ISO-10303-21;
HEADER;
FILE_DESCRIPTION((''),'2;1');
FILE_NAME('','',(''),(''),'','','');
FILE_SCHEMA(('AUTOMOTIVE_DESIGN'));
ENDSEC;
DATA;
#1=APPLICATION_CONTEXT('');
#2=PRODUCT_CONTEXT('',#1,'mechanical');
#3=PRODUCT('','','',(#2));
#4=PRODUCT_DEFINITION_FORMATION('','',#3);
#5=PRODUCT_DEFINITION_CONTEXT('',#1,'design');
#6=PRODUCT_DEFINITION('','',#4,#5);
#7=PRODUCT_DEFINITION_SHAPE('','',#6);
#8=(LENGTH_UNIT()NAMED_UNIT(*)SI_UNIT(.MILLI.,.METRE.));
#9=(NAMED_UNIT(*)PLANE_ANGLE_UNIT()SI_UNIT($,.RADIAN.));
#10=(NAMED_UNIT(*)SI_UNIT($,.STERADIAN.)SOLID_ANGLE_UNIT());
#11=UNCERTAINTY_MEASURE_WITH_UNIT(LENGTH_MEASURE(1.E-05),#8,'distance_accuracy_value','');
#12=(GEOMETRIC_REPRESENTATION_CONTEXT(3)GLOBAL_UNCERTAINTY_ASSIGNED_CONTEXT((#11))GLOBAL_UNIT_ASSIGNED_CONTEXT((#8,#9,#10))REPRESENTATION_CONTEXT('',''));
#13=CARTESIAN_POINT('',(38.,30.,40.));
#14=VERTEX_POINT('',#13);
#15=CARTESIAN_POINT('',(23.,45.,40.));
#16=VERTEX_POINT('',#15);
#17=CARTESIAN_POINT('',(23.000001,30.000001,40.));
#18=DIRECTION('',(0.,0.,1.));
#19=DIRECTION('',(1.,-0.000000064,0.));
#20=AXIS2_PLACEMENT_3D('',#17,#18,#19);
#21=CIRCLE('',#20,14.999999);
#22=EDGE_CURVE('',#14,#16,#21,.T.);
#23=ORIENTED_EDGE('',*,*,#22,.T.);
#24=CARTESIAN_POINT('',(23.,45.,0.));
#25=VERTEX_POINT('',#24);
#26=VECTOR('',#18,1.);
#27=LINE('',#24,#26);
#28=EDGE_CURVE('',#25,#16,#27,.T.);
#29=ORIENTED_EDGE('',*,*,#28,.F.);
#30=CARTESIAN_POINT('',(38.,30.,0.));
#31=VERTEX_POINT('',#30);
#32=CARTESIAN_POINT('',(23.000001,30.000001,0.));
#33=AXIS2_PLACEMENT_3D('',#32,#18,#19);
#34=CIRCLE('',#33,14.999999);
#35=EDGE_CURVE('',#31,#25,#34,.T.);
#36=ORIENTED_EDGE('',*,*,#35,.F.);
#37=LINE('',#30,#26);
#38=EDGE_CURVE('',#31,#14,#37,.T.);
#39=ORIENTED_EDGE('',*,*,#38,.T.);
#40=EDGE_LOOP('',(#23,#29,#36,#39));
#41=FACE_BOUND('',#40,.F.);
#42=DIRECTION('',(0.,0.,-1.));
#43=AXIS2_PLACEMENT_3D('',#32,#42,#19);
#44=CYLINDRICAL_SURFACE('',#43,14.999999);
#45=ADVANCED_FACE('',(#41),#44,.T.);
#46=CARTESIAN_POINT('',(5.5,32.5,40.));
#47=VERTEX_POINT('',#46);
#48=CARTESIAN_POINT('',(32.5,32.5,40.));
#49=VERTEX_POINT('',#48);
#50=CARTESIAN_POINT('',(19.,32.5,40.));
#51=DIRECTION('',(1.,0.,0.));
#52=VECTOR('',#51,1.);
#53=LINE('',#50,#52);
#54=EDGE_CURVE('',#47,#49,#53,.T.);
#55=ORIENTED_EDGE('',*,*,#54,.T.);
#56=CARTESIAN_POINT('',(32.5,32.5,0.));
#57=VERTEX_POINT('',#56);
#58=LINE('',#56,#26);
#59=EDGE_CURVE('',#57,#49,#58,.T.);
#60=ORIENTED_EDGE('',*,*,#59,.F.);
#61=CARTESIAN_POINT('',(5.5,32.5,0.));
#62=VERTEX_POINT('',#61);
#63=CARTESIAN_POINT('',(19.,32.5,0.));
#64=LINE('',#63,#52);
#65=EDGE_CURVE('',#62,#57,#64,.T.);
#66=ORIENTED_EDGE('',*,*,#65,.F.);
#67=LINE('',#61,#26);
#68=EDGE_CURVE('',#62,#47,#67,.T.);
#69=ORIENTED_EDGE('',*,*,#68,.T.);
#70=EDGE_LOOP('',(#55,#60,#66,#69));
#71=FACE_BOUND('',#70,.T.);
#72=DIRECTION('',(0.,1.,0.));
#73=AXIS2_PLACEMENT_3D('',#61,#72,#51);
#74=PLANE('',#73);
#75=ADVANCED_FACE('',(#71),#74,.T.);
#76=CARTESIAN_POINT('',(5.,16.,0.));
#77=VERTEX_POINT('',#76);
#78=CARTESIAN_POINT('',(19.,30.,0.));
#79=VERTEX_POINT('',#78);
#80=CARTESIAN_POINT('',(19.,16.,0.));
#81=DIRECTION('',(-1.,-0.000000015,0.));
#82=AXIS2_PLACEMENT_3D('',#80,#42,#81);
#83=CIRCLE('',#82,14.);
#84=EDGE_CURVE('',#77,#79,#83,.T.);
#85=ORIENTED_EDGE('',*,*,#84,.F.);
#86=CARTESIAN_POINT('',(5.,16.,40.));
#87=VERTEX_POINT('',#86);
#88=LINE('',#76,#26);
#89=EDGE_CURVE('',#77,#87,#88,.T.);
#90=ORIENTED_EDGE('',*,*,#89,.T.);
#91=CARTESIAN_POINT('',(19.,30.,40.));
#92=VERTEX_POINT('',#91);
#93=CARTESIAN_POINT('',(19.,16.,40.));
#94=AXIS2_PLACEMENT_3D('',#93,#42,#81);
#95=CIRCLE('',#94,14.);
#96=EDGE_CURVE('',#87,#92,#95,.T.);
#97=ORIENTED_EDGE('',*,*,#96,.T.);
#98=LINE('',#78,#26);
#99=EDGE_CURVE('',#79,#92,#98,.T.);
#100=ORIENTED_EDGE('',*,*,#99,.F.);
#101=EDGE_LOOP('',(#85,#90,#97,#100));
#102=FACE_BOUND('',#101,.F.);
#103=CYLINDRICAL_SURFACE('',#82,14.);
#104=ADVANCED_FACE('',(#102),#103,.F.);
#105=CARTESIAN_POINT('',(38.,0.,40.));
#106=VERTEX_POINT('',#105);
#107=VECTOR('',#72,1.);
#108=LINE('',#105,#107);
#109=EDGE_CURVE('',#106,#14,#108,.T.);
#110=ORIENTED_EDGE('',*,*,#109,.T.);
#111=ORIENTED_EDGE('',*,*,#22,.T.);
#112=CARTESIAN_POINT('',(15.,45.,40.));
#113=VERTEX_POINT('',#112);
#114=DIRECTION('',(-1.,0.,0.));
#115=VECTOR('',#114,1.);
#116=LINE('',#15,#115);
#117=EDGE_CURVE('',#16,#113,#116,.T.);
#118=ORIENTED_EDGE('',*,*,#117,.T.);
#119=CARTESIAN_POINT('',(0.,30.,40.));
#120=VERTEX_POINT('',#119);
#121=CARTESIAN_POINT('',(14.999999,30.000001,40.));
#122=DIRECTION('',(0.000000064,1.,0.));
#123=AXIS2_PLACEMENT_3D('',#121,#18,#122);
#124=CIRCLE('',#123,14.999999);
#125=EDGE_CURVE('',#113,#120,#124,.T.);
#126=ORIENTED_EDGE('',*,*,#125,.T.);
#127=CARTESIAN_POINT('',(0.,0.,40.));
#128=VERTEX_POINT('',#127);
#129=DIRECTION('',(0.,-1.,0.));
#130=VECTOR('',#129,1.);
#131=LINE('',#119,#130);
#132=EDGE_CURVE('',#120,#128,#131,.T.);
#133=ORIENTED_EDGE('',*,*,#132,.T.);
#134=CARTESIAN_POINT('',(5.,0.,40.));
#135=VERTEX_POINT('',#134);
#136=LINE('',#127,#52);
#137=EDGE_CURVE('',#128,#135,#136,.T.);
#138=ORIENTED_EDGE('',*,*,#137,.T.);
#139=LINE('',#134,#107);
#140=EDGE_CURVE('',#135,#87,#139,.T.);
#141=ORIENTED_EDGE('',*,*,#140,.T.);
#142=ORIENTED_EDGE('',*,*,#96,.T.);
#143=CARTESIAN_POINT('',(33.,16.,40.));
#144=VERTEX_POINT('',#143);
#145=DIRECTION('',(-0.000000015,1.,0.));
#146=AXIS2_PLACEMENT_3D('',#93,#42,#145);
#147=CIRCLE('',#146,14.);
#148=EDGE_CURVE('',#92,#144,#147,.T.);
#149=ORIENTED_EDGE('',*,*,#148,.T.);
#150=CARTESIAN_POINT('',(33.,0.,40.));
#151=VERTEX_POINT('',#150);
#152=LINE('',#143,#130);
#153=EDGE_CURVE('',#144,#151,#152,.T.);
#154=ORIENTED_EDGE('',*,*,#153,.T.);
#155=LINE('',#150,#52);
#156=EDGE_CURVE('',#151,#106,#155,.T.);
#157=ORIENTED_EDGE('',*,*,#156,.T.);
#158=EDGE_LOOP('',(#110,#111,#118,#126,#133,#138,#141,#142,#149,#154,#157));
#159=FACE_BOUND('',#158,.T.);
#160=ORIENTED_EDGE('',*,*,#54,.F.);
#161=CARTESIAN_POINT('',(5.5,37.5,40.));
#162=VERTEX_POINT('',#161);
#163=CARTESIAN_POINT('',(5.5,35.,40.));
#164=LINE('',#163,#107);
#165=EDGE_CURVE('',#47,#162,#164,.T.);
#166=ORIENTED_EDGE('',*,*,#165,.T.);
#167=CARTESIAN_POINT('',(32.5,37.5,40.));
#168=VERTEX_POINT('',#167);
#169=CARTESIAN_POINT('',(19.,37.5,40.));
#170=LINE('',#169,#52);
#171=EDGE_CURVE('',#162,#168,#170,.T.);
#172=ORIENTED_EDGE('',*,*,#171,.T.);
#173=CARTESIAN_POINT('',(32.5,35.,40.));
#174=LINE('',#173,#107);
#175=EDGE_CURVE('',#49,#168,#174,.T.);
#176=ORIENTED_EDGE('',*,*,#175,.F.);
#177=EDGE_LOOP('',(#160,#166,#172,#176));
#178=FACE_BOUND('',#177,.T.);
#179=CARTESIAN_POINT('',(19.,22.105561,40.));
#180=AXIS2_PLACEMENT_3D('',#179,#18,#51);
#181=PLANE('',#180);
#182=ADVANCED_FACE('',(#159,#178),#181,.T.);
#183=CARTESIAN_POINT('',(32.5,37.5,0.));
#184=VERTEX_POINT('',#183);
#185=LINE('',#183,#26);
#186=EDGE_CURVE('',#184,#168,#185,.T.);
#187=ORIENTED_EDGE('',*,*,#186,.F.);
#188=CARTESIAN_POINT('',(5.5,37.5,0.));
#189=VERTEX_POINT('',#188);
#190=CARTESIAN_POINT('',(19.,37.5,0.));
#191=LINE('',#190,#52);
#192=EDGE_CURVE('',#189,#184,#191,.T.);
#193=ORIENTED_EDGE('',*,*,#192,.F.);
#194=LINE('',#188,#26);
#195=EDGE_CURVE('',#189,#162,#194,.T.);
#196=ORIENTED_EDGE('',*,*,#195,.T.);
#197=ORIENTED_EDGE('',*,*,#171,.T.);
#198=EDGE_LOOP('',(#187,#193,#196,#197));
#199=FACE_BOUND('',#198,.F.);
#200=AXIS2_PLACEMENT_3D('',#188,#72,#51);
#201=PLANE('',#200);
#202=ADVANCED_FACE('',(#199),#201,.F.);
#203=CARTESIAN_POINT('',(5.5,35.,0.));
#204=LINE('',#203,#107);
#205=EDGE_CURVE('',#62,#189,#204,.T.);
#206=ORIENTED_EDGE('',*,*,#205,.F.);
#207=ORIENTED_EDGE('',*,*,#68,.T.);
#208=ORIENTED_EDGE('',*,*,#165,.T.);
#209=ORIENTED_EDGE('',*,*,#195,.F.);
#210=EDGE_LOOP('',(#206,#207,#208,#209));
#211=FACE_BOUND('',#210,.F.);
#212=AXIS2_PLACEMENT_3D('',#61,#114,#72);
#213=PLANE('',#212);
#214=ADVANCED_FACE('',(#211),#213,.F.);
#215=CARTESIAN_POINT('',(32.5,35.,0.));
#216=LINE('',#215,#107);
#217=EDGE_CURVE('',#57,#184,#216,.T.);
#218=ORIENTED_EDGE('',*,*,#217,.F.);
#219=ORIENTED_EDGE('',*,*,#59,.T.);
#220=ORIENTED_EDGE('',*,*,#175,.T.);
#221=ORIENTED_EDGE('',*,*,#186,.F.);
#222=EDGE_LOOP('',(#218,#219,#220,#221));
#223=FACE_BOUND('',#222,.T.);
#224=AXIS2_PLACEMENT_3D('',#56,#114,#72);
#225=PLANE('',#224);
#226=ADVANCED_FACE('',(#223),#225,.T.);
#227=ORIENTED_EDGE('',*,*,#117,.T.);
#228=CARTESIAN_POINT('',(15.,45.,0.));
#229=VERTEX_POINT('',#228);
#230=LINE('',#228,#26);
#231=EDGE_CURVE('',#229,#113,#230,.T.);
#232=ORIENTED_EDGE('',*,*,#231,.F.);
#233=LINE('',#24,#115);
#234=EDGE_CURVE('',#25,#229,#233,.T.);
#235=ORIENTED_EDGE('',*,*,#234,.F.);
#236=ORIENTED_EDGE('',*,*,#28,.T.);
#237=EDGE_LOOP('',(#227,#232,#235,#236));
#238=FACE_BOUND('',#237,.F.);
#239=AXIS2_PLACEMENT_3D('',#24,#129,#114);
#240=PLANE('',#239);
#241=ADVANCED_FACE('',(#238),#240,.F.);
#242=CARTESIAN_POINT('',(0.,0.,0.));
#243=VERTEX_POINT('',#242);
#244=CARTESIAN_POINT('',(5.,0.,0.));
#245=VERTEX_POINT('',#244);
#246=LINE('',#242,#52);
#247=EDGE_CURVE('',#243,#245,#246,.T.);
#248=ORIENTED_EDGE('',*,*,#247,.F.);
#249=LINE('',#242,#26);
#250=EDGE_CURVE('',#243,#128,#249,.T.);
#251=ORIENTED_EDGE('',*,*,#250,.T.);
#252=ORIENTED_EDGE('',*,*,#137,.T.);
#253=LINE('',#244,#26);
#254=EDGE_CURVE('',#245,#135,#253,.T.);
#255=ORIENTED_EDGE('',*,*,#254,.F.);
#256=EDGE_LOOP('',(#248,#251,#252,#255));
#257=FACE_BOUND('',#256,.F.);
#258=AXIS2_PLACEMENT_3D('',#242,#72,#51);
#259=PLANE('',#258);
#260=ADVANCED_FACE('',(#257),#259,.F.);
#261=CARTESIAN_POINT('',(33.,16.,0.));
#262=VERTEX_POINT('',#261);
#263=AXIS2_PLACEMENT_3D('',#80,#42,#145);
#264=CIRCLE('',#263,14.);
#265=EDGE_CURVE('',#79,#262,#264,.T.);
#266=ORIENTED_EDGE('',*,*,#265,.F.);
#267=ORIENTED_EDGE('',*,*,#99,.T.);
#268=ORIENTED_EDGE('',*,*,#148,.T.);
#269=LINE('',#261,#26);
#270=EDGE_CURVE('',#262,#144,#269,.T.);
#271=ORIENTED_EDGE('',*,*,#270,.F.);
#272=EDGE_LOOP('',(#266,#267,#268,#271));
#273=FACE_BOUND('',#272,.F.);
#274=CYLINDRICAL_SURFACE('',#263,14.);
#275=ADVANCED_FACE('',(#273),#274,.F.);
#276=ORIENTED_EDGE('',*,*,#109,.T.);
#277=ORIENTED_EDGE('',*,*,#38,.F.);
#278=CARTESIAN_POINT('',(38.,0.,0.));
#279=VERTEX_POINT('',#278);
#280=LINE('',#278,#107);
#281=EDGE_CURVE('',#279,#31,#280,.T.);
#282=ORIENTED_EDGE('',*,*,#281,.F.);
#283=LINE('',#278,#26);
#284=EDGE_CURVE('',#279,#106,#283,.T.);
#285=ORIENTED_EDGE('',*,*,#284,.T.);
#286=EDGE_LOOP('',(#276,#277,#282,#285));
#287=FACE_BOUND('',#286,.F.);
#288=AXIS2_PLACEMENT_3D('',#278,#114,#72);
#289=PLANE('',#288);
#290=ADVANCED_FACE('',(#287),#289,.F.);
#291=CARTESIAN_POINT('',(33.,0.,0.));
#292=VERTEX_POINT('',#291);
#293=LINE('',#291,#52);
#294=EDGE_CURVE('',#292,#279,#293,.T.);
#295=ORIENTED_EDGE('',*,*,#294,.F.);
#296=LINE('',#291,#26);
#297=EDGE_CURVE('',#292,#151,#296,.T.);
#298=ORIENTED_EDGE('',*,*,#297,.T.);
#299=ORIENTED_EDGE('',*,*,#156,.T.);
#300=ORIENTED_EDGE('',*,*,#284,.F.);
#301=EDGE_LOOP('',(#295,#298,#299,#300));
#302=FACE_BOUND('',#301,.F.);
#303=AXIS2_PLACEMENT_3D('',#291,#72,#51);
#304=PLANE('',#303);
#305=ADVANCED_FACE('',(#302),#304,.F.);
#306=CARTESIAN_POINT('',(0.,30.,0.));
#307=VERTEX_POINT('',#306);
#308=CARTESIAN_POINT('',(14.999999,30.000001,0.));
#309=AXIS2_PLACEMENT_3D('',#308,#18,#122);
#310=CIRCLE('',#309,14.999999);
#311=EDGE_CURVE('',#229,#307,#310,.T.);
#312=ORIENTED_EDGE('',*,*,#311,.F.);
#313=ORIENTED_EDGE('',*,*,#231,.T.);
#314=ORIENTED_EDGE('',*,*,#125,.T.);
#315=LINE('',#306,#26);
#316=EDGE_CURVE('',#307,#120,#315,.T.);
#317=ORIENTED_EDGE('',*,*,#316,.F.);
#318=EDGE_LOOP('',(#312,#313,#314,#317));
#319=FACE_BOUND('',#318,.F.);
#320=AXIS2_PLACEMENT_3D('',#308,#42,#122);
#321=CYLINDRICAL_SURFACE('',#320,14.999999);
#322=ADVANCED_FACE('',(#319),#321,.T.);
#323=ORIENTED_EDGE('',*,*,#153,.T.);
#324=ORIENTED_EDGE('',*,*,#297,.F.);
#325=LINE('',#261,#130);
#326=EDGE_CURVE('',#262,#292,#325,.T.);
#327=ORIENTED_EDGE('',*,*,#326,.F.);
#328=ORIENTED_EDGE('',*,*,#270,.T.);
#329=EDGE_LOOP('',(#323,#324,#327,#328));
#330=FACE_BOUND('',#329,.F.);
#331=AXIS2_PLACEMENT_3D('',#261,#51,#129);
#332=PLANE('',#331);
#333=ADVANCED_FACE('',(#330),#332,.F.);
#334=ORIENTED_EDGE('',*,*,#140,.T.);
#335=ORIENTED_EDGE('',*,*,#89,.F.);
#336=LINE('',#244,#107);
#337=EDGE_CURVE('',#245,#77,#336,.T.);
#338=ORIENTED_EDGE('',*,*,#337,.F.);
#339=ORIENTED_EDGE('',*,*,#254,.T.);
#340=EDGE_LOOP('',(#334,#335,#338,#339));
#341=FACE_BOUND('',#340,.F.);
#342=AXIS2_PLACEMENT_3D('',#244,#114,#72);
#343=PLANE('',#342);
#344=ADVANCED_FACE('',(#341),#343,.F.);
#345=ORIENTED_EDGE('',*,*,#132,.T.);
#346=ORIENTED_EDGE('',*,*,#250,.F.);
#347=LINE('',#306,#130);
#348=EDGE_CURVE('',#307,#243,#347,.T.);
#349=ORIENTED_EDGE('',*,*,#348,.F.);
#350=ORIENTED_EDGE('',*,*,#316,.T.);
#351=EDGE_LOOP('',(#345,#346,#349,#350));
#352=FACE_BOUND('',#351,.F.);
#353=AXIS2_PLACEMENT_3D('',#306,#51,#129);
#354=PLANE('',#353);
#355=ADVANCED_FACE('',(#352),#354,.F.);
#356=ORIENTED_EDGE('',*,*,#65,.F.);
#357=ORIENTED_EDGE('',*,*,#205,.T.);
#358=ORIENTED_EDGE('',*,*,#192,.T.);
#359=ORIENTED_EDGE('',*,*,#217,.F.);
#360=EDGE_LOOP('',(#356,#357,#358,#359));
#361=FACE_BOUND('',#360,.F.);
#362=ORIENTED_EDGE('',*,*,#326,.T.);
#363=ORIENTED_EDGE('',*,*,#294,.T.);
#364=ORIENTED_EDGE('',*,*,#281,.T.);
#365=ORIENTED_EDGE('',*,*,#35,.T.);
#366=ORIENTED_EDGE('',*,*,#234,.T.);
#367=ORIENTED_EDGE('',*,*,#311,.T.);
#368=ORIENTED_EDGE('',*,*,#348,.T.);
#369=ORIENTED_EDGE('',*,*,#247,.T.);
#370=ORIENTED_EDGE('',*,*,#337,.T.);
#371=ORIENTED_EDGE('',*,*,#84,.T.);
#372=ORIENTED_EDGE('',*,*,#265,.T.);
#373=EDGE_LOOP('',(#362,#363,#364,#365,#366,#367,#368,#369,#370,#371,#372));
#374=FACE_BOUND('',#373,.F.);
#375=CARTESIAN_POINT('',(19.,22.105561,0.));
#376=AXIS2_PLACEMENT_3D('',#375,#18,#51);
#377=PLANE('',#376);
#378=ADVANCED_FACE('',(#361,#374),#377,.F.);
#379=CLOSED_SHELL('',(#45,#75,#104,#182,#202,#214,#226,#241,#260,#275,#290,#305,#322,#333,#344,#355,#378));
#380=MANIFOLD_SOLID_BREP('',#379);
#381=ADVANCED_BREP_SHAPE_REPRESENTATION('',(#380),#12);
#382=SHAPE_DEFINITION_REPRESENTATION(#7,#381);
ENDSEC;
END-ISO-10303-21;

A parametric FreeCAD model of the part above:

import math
import FreeCAD as App
import Part
import Sketcher
from FreeCAD import Vector


def add_polygon(sketch, points):
    """Adds a closed chain of lines whose ends are joined by coincident constraints."""
    first, n = sketch.GeometryCount, len(points)
    for a, b in zip(points, points[1:] + points[:1]):
        sketch.addGeometry(Part.LineSegment(App.Vector(*a, 0), App.Vector(*b, 0)), False)
    for i in range(n):
        sketch.addConstraint(Sketcher.Constraint("Coincident", first + i, 2, first + (i + 1) % n, 1))

doc = App.newDocument("Part")
body = doc.addObject("PartDesign::Body", "Body")

# Sketch on XY plane
sketch1 = doc.addObject("Sketcher::SketchObject", "Sketch")
body.addObject(sketch1)
sketch1.AttachmentSupport = (doc.XY_Plane, [""])
sketch1.MapMode = "FlatFace"
sketch1.addGeometry(Part.LineSegment(Vector(0, 30, 0), Vector(0, 0, 0)), False)  # 0
sketch1.addGeometry(Part.LineSegment(Vector(0, 0, 0), Vector(5, 0, 0)), False)  # 1
sketch1.addGeometry(Part.LineSegment(Vector(5, 0, 0), Vector(5, 16, 0)), False)  # 2
sketch1.addGeometry(Part.ArcOfCircle(Part.Circle(Vector(19, 16, 0), Vector(0, 0, 1), 14), math.radians(90), math.radians(180)), False)  # 3
sketch1.addGeometry(Part.ArcOfCircle(Part.Circle(Vector(19, 16, 0), Vector(0, 0, 1), 14), math.radians(0), math.radians(90)), False)  # 4
sketch1.addGeometry(Part.LineSegment(Vector(33, 16, 0), Vector(33, 0, 0)), False)  # 5
sketch1.addGeometry(Part.LineSegment(Vector(33, 0, 0), Vector(38, 0, 0)), False)  # 6
sketch1.addGeometry(Part.LineSegment(Vector(38, 0, 0), Vector(38, 30, 0)), False)  # 7
sketch1.addGeometry(Part.ArcOfCircle(Part.Circle(Vector(23, 30, 0), Vector(0, 0, 1), 15), math.radians(0), math.radians(90)), False)  # 8
sketch1.addGeometry(Part.LineSegment(Vector(23, 45, 0), Vector(15, 45, 0)), False)  # 9
sketch1.addGeometry(Part.ArcOfCircle(Part.Circle(Vector(15, 30, 0), Vector(0, 0, 1), 15), math.radians(90), math.radians(180)), False)  # 10
add_polygon(sketch1, [(32, 32), (6, 32), (6, 38), (32, 38)])  # lines 11-14
sketch1.addConstraint(Sketcher.Constraint("Coincident", 0, 2, 1, 1))
sketch1.addConstraint(Sketcher.Constraint("Coincident", 1, 2, 2, 1))
sketch1.addConstraint(Sketcher.Constraint("Tangent", 2, 2, 3, 2))
sketch1.addConstraint(Sketcher.Constraint("Tangent", 3, 1, 4, 2))
sketch1.addConstraint(Sketcher.Constraint("Tangent", 4, 1, 5, 1))
sketch1.addConstraint(Sketcher.Constraint("Coincident", 5, 2, 6, 1))
sketch1.addConstraint(Sketcher.Constraint("Coincident", 6, 2, 7, 1))
sketch1.addConstraint(Sketcher.Constraint("Tangent", 7, 2, 8, 1))
sketch1.addConstraint(Sketcher.Constraint("Tangent", 8, 2, 9, 1))
sketch1.addConstraint(Sketcher.Constraint("Tangent", 9, 2, 10, 1))
sketch1.addConstraint(Sketcher.Constraint("Tangent", 10, 2, 0, 1))
sketch1.addConstraint(Sketcher.Constraint("Vertical", 0))
sketch1.addConstraint(Sketcher.Constraint("Horizontal", 1))
sketch1.addConstraint(Sketcher.Constraint("Vertical", 2))
sketch1.addConstraint(Sketcher.Constraint("Vertical", 5))
sketch1.addConstraint(Sketcher.Constraint("Horizontal", 6))
sketch1.addConstraint(Sketcher.Constraint("Vertical", 7))
sketch1.addConstraint(Sketcher.Constraint("Horizontal", 9))
sketch1.addConstraint(Sketcher.Constraint("Horizontal", 11))
sketch1.addConstraint(Sketcher.Constraint("Vertical", 12))
sketch1.addConstraint(Sketcher.Constraint("Horizontal", 13))
sketch1.addConstraint(Sketcher.Constraint("Vertical", 14))
sketch1.addConstraint(Sketcher.Constraint("Coincident", 0, 2, -1, 1))
sketch1.addConstraint(Sketcher.Constraint("Equal", 3, 4))
sketch1.addConstraint(Sketcher.Constraint("Equal", 8, 10))
sketch1.addConstraint(Sketcher.Constraint("PointOnObject", 5, 2, -1))
sketch1.addConstraint(Sketcher.Constraint("Horizontal", 10, 3, 3, 1))
sketch1.addConstraint(Sketcher.Constraint("Vertical", 4, 3, 3, 1))
sketch1.addConstraint(Sketcher.Constraint("Equal", 1, 6))
sketch1.addConstraint(Sketcher.Constraint("Equal", 6, 12))
sketch1.addConstraint(Sketcher.Constraint("Radius", 3, 14.0))
sketch1.addConstraint(Sketcher.Constraint("Radius", 8, 14.999999))
sketch1.addConstraint(Sketcher.Constraint("DistanceX", 1, 1, 1, 2, 5.0))
sketch1.addConstraint(Sketcher.Constraint("DistanceX", 11, 2, 11, 1, 27.0))
sketch1.addConstraint(Sketcher.Constraint("DistanceY", 0, 2, 0, 1, 30.0))
sketch1.addConstraint(Sketcher.Constraint("DistanceX", -1, 1, 11, 2, 5.5))
sketch1.addConstraint(Sketcher.Constraint("DistanceY", -1, 1, 11, 2, 32.5))
pad1 = doc.addObject("PartDesign::Pad", "Pad")
body.addObject(pad1)
pad1.Profile = sketch1
pad1.Length = 40

doc.recompute()
